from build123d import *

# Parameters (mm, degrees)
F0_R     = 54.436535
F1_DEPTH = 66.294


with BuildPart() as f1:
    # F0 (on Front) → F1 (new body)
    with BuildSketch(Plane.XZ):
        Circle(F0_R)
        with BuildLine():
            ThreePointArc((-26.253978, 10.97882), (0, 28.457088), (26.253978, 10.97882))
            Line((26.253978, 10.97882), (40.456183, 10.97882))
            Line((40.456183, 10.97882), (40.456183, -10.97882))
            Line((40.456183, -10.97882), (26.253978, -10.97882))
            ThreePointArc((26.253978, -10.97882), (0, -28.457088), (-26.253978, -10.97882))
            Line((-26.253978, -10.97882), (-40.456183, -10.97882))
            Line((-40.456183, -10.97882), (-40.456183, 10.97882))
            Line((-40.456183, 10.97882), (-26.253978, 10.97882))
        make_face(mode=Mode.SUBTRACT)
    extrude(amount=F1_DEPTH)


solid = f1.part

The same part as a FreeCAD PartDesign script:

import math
import FreeCAD as App
import Part
import Sketcher

V = App.Vector

doc = App.newDocument("Part")
params = doc.addObject("Spreadsheet::Sheet", "Params")
for row, (alias, value) in enumerate([
    ("pad1_length", "2.61 in"),
], start=1):
    params.set(f"A{row}", alias)
    params.set(f"B{row}", "=" + value)
    params.setAlias(f"B{row}", alias)

body = doc.addObject("PartDesign::Body", "Body")

sketch1 = body.newObject("Sketcher::SketchObject", "Sketch")
sketch1.AttachmentSupport = (doc.getObject("XZ_Plane"), [""])
sketch1.MapMode = "FlatFace"
sketch1.addGeometry(Part.Circle(V(0, 0, 0), V(0, 0, 1), 54), False)
sketch1.addGeometry(Part.LineSegment(V(-40, 11, 0), V(-26, 11, 0)), False)
sketch1.addGeometry(Part.ArcOfCircle(Part.Circle(V(0, 0, 0), V(0, 0, 1), 28), math.radians(23), math.radians(157)), False)
sketch1.addGeometry(Part.LineSegment(V(26, 11, 0), V(40, 11, 0)), False)
sketch1.addGeometry(Part.LineSegment(V(40, 11, 0), V(40, -11, 0)), False)
sketch1.addGeometry(Part.LineSegment(V(40, -11, 0), V(26, -11, 0)), False)
sketch1.addGeometry(Part.ArcOfCircle(Part.Circle(V(0, 0, 0), V(0, 0, 1), 28), math.radians(-157), math.radians(-23)), False)
sketch1.addGeometry(Part.LineSegment(V(-26, -11, 0), V(-40, -11, 0)), False)
sketch1.addGeometry(Part.LineSegment(V(-40, -11, 0), V(-40, 11, 0)), False)
sketch1.addConstraint(Sketcher.Constraint("Coincident", 1, 2, 2, 2))
sketch1.addConstraint(Sketcher.Constraint("Coincident", 2, 1, 3, 1))
sketch1.addConstraint(Sketcher.Constraint("Coincident", 3, 2, 4, 1))
sketch1.addConstraint(Sketcher.Constraint("Coincident", 4, 2, 5, 1))
sketch1.addConstraint(Sketcher.Constraint("Coincident", 5, 2, 6, 2))
sketch1.addConstraint(Sketcher.Constraint("Coincident", 6, 1, 7, 1))
sketch1.addConstraint(Sketcher.Constraint("Coincident", 7, 2, 8, 1))
sketch1.addConstraint(Sketcher.Constraint("Coincident", 8, 2, 1, 1))
sketch1.addConstraint(Sketcher.Constraint("Horizontal", 1))
sketch1.addConstraint(Sketcher.Constraint("Horizontal", 3))
sketch1.addConstraint(Sketcher.Constraint("Vertical", 4))
sketch1.addConstraint(Sketcher.Constraint("Horizontal", 5))
sketch1.addConstraint(Sketcher.Constraint("Horizontal", 7))
sketch1.addConstraint(Sketcher.Constraint("Vertical", 8))
sketch1.addConstraint(Sketcher.Constraint("Coincident", 0, 3, -1, 1))
sketch1.addConstraint(Sketcher.Constraint("Coincident", 2, 3, -1, 1))
sketch1.addConstraint(Sketcher.Constraint("Coincident", 6, 3, -1, 1))
sketch1.addConstraint(Sketcher.Constraint("Equal", 2, 6))
sketch1.addConstraint(Sketcher.Constraint("Symmetric", 3, 2, 7, 2, -1, 1))
sketch1.addConstraint(Sketcher.Constraint("Horizontal", 1, 2, 2, 1))
sketch1.addConstraint(Sketcher.Constraint("Horizontal", 5, 2, 6, 1))
sketch1.addConstraint(Sketcher.Constraint("Diameter", 0, 108.87307))
sketch1.addConstraint(Sketcher.Constraint("Radius", 2, 28.457088))
sketch1.addConstraint(Sketcher.Constraint("DistanceY", 4, 2, 4, 1, 21.95764))
sketch1.addConstraint(Sketcher.Constraint("DistanceX", 1, 1, 1, 2, 14.202205))
pad1 = body.newObject("PartDesign::Pad", "Pad")
pad1.Profile = sketch1
pad1.setExpression("Length", "Params.pad1_length")

doc.recompute()
